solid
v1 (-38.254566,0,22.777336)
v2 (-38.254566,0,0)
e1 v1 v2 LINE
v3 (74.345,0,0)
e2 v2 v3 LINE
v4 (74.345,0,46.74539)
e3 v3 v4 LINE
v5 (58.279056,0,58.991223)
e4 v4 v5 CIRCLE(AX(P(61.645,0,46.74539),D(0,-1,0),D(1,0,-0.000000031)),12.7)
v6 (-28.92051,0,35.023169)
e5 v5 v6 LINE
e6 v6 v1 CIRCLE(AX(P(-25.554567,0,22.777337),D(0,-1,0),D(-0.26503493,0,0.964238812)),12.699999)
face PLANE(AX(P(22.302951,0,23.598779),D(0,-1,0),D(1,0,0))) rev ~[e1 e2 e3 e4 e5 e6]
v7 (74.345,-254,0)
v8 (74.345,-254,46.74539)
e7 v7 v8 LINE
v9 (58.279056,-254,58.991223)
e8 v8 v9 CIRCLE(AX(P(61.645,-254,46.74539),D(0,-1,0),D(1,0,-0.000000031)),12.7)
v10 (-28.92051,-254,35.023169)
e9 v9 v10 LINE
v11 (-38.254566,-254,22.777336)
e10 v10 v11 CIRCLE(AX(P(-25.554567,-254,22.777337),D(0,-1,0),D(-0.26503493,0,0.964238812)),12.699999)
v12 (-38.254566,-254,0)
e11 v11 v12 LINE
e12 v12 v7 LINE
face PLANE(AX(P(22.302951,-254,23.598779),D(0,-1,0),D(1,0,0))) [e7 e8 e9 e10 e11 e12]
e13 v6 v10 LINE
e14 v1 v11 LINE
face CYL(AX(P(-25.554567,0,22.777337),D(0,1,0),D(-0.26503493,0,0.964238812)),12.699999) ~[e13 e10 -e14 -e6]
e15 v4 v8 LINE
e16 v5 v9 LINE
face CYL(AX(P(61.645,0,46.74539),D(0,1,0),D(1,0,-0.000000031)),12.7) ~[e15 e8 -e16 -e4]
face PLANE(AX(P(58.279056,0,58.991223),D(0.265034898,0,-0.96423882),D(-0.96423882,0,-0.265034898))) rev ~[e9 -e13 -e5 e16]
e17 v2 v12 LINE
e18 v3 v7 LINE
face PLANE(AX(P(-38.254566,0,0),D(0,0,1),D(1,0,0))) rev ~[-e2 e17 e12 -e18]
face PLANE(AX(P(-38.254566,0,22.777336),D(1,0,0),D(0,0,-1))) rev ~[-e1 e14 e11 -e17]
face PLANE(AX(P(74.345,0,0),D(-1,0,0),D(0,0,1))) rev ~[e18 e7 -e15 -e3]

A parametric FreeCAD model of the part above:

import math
import FreeCAD as App
import Part
import Sketcher

V = App.Vector
Q = App.Units.Quantity

doc = App.newDocument("Part")
body = doc.addObject("PartDesign::Body", "Body")

# Sketch on XZ plane
sketch1 = doc.addObject("Sketcher::SketchObject", "Sketch")
body.addObject(sketch1)
sketch1.AttachmentSupport = (doc.XZ_Plane, [""])
sketch1.MapMode = "FlatFace"
sketch1.addGeometry([
    Part.LineSegment(V(-38.254566, 22.777336, 0), V(-38.254566, 0, 0)),  # 0
    Part.LineSegment(V(-38.254566, 0, 0), V(74.345, 0, 0)),  # 1
    Part.LineSegment(V(74.345, 0, 0), V(74.345, 46.74539, 0)),  # 2
    Part.ArcOfCircle(Part.Circle(V(61.645, 46.74539, 0), V(0, 0, 1), 12.7), math.radians(-0.000002), math.radians(105.369031)),  # 3
    Part.LineSegment(V(58.279056, 58.991223, 0), V(-28.92051, 35.023169, 0)),  # 4
    Part.ArcOfCircle(Part.Circle(V(-25.554567, 22.777337, 0), V(0, 0, 1), 12.699999), math.radians(105.369028), math.radians(180.000003)),  # 5
], False)
sketch1.addConstraint([
    Sketcher.Constraint("Coincident", 0, 2, 1, 1),
    Sketcher.Constraint("Coincident", 1, 2, 2, 1),
    Sketcher.Constraint("Tangent", 2, 2, 3, 1),
    Sketcher.Constraint("Tangent", 3, 2, 4, 1),
    Sketcher.Constraint("Tangent", 4, 2, 5, 1),
    Sketcher.Constraint("Tangent", 5, 2, 0, 1),
    Sketcher.Constraint("Vertical", 0),
    Sketcher.Constraint("Horizontal", 1),
    Sketcher.Constraint("Vertical", 2),
    Sketcher.Constraint("Equal", 3, 5),
    Sketcher.Constraint("PointOnObject", 0, 2, -1),
    Sketcher.Constraint("Radius", 3, Q("0.5 in")),
    Sketcher.Constraint("DistanceY", 2, 1, 2, 2, Q("46.74539 mm")),
    Sketcher.Constraint("DistanceX", -1, 1, 3, 3, Q("61.645 mm")),
    Sketcher.Constraint("DistanceX", 1, 1, 1, 2, Q("112.599566 mm")),
    Sketcher.Constraint("DistanceY", 0, 2, 0, 1, Q("22.777336 mm")),
])
pad1 = doc.addObject("PartDesign::Pad", "Pad")
body.addObject(pad1)
pad1.Profile = sketch1
pad1.Length = Q("10 in")

doc.recompute()
